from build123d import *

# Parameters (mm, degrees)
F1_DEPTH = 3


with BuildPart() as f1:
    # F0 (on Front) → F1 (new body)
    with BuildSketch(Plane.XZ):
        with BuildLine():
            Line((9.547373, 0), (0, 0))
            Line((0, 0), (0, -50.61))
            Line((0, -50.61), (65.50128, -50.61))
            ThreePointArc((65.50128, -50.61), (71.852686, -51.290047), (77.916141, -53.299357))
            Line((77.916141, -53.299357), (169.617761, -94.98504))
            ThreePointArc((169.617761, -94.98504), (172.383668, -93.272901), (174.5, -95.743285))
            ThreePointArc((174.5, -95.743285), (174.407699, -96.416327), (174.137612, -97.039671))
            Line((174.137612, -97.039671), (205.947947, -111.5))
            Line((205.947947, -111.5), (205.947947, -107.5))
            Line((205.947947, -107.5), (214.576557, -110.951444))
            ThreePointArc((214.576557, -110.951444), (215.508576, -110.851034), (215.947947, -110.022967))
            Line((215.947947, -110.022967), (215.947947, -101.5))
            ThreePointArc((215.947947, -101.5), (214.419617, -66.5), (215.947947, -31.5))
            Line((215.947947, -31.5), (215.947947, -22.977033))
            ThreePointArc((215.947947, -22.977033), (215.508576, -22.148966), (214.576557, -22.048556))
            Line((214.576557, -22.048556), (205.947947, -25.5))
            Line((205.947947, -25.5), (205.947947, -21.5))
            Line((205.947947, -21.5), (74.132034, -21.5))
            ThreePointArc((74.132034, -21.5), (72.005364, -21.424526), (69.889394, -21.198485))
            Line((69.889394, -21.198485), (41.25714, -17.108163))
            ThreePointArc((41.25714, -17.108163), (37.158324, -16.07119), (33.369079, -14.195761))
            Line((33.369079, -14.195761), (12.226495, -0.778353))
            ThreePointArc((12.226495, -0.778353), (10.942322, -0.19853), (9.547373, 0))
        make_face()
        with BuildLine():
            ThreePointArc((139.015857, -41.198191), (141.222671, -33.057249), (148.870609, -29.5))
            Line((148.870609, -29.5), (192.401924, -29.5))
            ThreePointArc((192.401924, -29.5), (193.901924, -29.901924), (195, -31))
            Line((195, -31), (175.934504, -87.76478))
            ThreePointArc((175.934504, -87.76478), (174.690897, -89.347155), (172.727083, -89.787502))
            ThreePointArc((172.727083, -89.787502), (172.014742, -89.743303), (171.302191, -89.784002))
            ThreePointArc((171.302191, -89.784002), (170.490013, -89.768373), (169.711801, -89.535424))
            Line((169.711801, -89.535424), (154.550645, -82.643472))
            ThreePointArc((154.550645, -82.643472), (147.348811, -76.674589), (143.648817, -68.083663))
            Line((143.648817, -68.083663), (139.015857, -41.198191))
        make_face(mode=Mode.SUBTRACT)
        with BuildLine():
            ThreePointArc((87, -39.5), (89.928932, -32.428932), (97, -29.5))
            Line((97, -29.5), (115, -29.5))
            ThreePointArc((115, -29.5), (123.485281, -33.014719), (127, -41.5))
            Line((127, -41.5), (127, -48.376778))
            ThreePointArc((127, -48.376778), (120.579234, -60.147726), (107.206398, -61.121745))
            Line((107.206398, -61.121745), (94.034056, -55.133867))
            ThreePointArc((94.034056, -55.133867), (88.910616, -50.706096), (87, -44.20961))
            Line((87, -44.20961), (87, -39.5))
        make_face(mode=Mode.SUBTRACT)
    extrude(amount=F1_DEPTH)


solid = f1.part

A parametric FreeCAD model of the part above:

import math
import FreeCAD as App
import Part
import Sketcher

doc = App.newDocument("Part")
params = doc.addObject("Spreadsheet::Sheet", "Params")
for row, (alias, value) in enumerate([
    ("sketch1_radius", "1 mm"),
    ("sketch1_radius2", "1 mm"),
    ("sketch1_radius3", "10 mm"),
    ("sketch1_radius4", "3.000001 mm"),
    ("sketch1_radius5", "9.999999 mm"),
    ("pad1_length", "3 mm"),
], start=1):
    params.set(f"A{row}", alias)
    params.set(f"B{row}", "=" + value)
    params.setAlias(f"B{row}", alias)

body = doc.addObject("PartDesign::Body", "Body")

# Sketch on XZ plane
sketch1 = doc.addObject("Sketcher::SketchObject", "Sketch")
body.addObject(sketch1)
sketch1.AttachmentSupport = (doc.XZ_Plane, [""])
sketch1.MapMode = "FlatFace"
sketch1.addGeometry([
    Part.LineSegment(App.Vector(9.547373, 0, 0), App.Vector(0, 0, 0)),  # 0
    Part.LineSegment(App.Vector(0, 0, 0), App.Vector(0, -50.61, 0)),  # 1
    Part.LineSegment(App.Vector(0, -50.61, 0), App.Vector(65.50128, -50.61, 0)),  # 2
    Part.ArcOfCircle(Part.Circle(App.Vector(65.501281, -80.609997, 0), App.Vector(0, 0, 1), 29.999997), math.radians(65.554422), math.radians(90.000001)),  # 3
    Part.LineSegment(App.Vector(77.916141, -53.299357, 0), App.Vector(169.617761, -94.98504, 0)),  # 4
    Part.ArcOfCircle(Part.Circle(App.Vector(172, -95.743285, 0), App.Vector(0, 0, 1), 2.5), math.radians(0.000005), math.radians(162.344197)),  # 5
    Part.ArcOfCircle(Part.Circle(App.Vector(171.999995, -95.743284, 0), App.Vector(0, 0, 1), 2.500005), math.radians(-31.235286), math.radians(-0.000014)),  # 6
    Part.LineSegment(App.Vector(174.137612, -97.039671, 0), App.Vector(205.947947, -111.5, 0)),  # 7
    Part.LineSegment(App.Vector(205.947947, -111.5, 0), App.Vector(205.947947, -107.5, 0)),  # 8
    Part.LineSegment(App.Vector(205.947947, -107.5, 0), App.Vector(214.576557, -110.951444, 0)),  # 9
    Part.ArcOfCircle(Part.Circle(App.Vector(214.947947, -110.022967, 0), App.Vector(0, 0, 1), 1), math.radians(-111.801355), math.radians(-0.00001)),  # 10
    Part.LineSegment(App.Vector(215.947947, -110.022967, 0), App.Vector(215.947947, -101.5, 0)),  # 11
    Part.ArcOfCircle(Part.Circle(App.Vector(615.948015, -66.5, 0), App.Vector(0, 0, 1), 401.528398), math.radians(174.999356), math.radians(185.000644)),  # 12
    Part.LineSegment(App.Vector(215.947947, -31.5, 0), App.Vector(215.947947, -22.977033, 0)),  # 13
    Part.ArcOfCircle(Part.Circle(App.Vector(214.947947, -22.977033, 0), App.Vector(0, 0, 1), 1), math.radians(0.00001), math.radians(111.801355)),  # 14
    Part.LineSegment(App.Vector(214.576557, -22.048556, 0), App.Vector(205.947947, -25.5, 0)),  # 15
    Part.LineSegment(App.Vector(205.947947, -25.5, 0), App.Vector(205.947947, -21.5, 0)),  # 16
    Part.LineSegment(App.Vector(205.947947, -21.5, 0), App.Vector(74.132034, -21.5, 0)),  # 17
    Part.ArcOfCircle(Part.Circle(App.Vector(74.132043, 8.50014, 0), App.Vector(0, 0, 1), 30.00014), math.radians(-98.130081), math.radians(-90.000018)),  # 18
    Part.LineSegment(App.Vector(69.889394, -21.198485, 0), App.Vector(41.25714, -17.108163, 0)),  # 19
    Part.ArcOfCircle(Part.Circle(App.Vector(44.085573, 2.690836, 0), App.Vector(0, 0, 1), 20.00001), math.radians(-122.399838), math.radians(-98.130114)),  # 20
    Part.LineSegment(App.Vector(33.369079, -14.195761, 0), App.Vector(12.226495, -0.778353, 0)),  # 21
    Part.ArcOfCircle(Part.Circle(App.Vector(9.547371, -5.000005, 0), App.Vector(0, 0, 1), 5.000005), math.radians(57.600175), math.radians(89.999979)),  # 22
    Part.LineSegment(App.Vector(143.648817, -68.083663, 0), App.Vector(139.015857, -41.198191, 0)),  # 23
    Part.ArcOfCircle(Part.Circle(App.Vector(148.870609, -39.5, 0), App.Vector(0, 0, 1), 10), math.radians(90), math.radians(189.777304)),  # 24
    Part.LineSegment(App.Vector(148.870609, -29.5, 0), App.Vector(192.401924, -29.5, 0)),  # 25
    Part.ArcOfCircle(Part.Circle(App.Vector(192.401924, -32.5, 0), App.Vector(0, 0, 1), 3.000001), math.radians(30.000006), math.radians(89.99999)),  # 26
    Part.LineSegment(App.Vector(195, -31, 0), App.Vector(175.934504, -87.76478, 0)),  # 27
    Part.ArcOfCircle(Part.Circle(App.Vector(173.090626, -86.809613, 0), App.Vector(0, 0, 1), 2.999997), math.radians(-96.960275), math.radians(-18.565537)),  # 28
    Part.ArcOfCircle(Part.Circle(App.Vector(172.000004, -95.743223, 0), App.Vector(0, 0, 1), 5.999938), math.radians(83.039724), math.radians(96.678802)),  # 29
    Part.ArcOfCircle(Part.Circle(App.Vector(170.95329, -86.804345, 0), App.Vector(0, 0, 1), 3.000015), math.radians(-114.445511), math.radians(-83.321403)),  # 30
    Part.LineSegment(App.Vector(169.711801, -89.535424, 0), App.Vector(154.550645, -82.643472, 0)),  # 31
    Part.ArcOfCircle(Part.Circle(App.Vector(163.358319, -64.687282, 0), App.Vector(0, 0, 1), 19.999997), math.radians(-170.2227), math.radians(-116.12837)),  # 32
    Part.LineSegment(App.Vector(87, -44.20961, 0), App.Vector(87, -39.5, 0)),  # 33
    Part.ArcOfCircle(Part.Circle(App.Vector(96.999999, -39.499999, 0), App.Vector(0, 0, 1), 9.999999), math.radians(89.999996), math.radians(180.000004)),  # 34
    Part.LineSegment(App.Vector(97, -29.5, 0), App.Vector(115, -29.5, 0)),  # 35
    Part.ArcOfCircle(Part.Circle(App.Vector(114.999999, -41.500001, 0), App.Vector(0, 0, 1), 12.000001), math.radians(0.000006), math.radians(89.999994)),  # 36
    Part.LineSegment(App.Vector(127, -41.5, 0), App.Vector(127, -48.376778, 0)),  # 37
    Part.ArcOfCircle(Part.Circle(App.Vector(113, -48.376778, 0), App.Vector(0, 0, 1), 14), math.radians(-114.445576), math.radians(0.000001)),  # 38
    Part.LineSegment(App.Vector(107.206398, -61.121745, 0), App.Vector(94.034056, -55.133867, 0)),  # 39
    Part.ArcOfCircle(Part.Circle(App.Vector(98.999999, -44.20961, 0), App.Vector(0, 0, 1), 11.999999), math.radians(179.999998), math.radians(245.55443)),  # 40
], False)
sketch1.addConstraint([
    Sketcher.Constraint("Coincident", 0, 2, 1, 1),
    Sketcher.Constraint("Coincident", 1, 2, 2, 1),
    Sketcher.Constraint("Coincident", 2, 2, 3, 2),
    Sketcher.Constraint("Coincident", 3, 1, 4, 1),
    Sketcher.Constraint("Coincident", 4, 2, 5, 2),
    Sketcher.Constraint("Coincident", 5, 1, 6, 2),
    Sketcher.Constraint("Coincident", 6, 1, 7, 1),
    Sketcher.Constraint("Coincident", 7, 2, 8, 1),
    Sketcher.Constraint("Coincident", 8, 2, 9, 1),
    Sketcher.Constraint("Coincident", 9, 2, 10, 1),
    Sketcher.Constraint("Coincident", 10, 2, 11, 1),
    Sketcher.Constraint("Coincident", 11, 2, 12, 2),
    Sketcher.Constraint("Coincident", 12, 1, 13, 1),
    Sketcher.Constraint("Coincident", 13, 2, 14, 1),
    Sketcher.Constraint("Coincident", 14, 2, 15, 1),
    Sketcher.Constraint("Coincident", 15, 2, 16, 1),
    Sketcher.Constraint("Coincident", 16, 2, 17, 1),
    Sketcher.Constraint("Coincident", 17, 2, 18, 2),
    Sketcher.Constraint("Coincident", 18, 1, 19, 1),
    Sketcher.Constraint("Coincident", 19, 2, 20, 2),
    Sketcher.Constraint("Coincident", 20, 1, 21, 1),
    Sketcher.Constraint("Coincident", 21, 2, 22, 1),
    Sketcher.Constraint("Coincident", 22, 2, 0, 1),
    Sketcher.Constraint("Coincident", 23, 2, 24, 2),
    Sketcher.Constraint("Coincident", 24, 1, 25, 1),
    Sketcher.Constraint("Coincident", 25, 2, 26, 2),
    Sketcher.Constraint("Coincident", 26, 1, 27, 1),
    Sketcher.Constraint("Coincident", 27, 2, 28, 2),
    Sketcher.Constraint("Coincident", 28, 1, 29, 1),
    Sketcher.Constraint("Coincident", 29, 2, 30, 2),
    Sketcher.Constraint("Coincident", 30, 1, 31, 1),
    Sketcher.Constraint("Coincident", 31, 2, 32, 2),
    Sketcher.Constraint("Coincident", 32, 1, 23, 1),
    Sketcher.Constraint("Coincident", 33, 2, 34, 2),
    Sketcher.Constraint("Coincident", 34, 1, 35, 1),
    Sketcher.Constraint("Coincident", 35, 2, 36, 2),
    Sketcher.Constraint("Coincident", 36, 1, 37, 1),
    Sketcher.Constraint("Coincident", 37, 2, 38, 2),
    Sketcher.Constraint("Coincident", 38, 1, 39, 1),
    Sketcher.Constraint("Coincident", 39, 2, 40, 2),
    Sketcher.Constraint("Coincident", 40, 1, 33, 1),
    Sketcher.Constraint("Horizontal", 0),
    Sketcher.Constraint("Vertical", 1),
    Sketcher.Constraint("Horizontal", 2),
    Sketcher.Constraint("Vertical", 8),
    Sketcher.Constraint("Vertical", 11),
    Sketcher.Constraint("Vertical", 13),
    Sketcher.Constraint("Vertical", 16),
    Sketcher.Constraint("Horizontal", 17),
    Sketcher.Constraint("Horizontal", 25),
    Sketcher.Constraint("Vertical", 33),
    Sketcher.Constraint("Horizontal", 35),
    Sketcher.Constraint("Vertical", 37),
    Sketcher.Constraint("Coincident", 0, 2, -1, 1),
    Sketcher.Constraint("Coincident", 6, 3, 5, 3),
    Sketcher.Constraint("Radius", 10, 1.0),
    Sketcher.Constraint("Radius", 14, 1.0),
    Sketcher.Constraint("Radius", 24, 10.0),
    Sketcher.Constraint("Radius", 26, 3.000001),
    Sketcher.Constraint("Radius", 34, 9.999999),
    Sketcher.Constraint("Radius", 36, 12.000001),
    Sketcher.Constraint("Radius", 38, 14.0),
    Sketcher.Constraint("Radius", 40, 11.999999),
    Sketcher.Constraint("Radius", 5, 2.5),
    Sketcher.Constraint("DistanceX", 35, 1, 35, 2, 18.0),
    Sketcher.Constraint("DistanceY", 8, 1, 8, 2, 4.0),
    Sketcher.Constraint("DistanceY", 16, 1, 16, 2, 4.0),
    Sketcher.Constraint("DistanceX", -1, 1, 5, 3, 172.0),
    Sketcher.Constraint("DistanceX", -1, 1, 34, 3, 96.999999),
    Sketcher.Constraint("DistanceX", -1, 1, 36, 3, 114.999999),
    Sketcher.Constraint("DistanceX", -1, 1, 26, 1, 195.0),
    Sketcher.Constraint("DistanceY", 26, 1, -1, 1, 31.0),
    Sketcher.Constraint("DistanceX", -1, 1, 34, 1, 97.0),
    Sketcher.Constraint("DistanceY", 36, 3, 24, 3, 2.000002),
    Sketcher.Constraint("DistanceX", 7, 2, 10, 3, 9.0),
    Sketcher.Constraint("DistanceY", 8, 2, 11, 2, 6.0),
    Sketcher.Constraint("DistanceY", 26, 3, 12, 1, 1.0),
    Sketcher.Constraint("DistanceX", 15, 2, 14, 3, 9.0),
    Sketcher.Constraint("DistanceY", 26, 3, 15, 2, 7.0),
    Sketcher.Constraint("DistanceY", 33, 2, 17, 2, 18.0),
    Sketcher.Constraint("DistanceY", 36, 1, 35, 2, 12.0),
    Sketcher.Constraint("DistanceY", 1, 2, 1, 1, 50.61),
    Sketcher.Constraint("DistanceY", 12, 3, -1, 1, 66.5),
    Sketcher.Constraint("DistanceY", 24, 3, -1, 1, 39.5),
    Sketcher.Constraint("DistanceY", 7, 2, -1, 1, 111.5),
    Sketcher.Constraint("Radius", 18, 30.00014),
    Sketcher.Constraint("Radius", 20, 20.00001),
    Sketcher.Constraint("Radius", 3, 29.999997),
    Sketcher.Constraint("Radius", 12, 401.528398),
    Sketcher.Constraint("Radius", 22, 5.000005),
    Sketcher.Constraint("Radius", 28, 2.999997),
    Sketcher.Constraint("Radius", 29, 5.999938),
    Sketcher.Constraint("Radius", 30, 3.000015),
    Sketcher.Constraint("Radius", 32, 19.999997),
    Sketcher.Constraint("DistanceY", 19, 2, 20, 3, 19.798999),
    Sketcher.Constraint("DistanceX", 2, 1, 2, 2, 65.50128),
    Sketcher.Constraint("DistanceY", 33, 1, 33, 2, 4.70961),
    Sketcher.Constraint("DistanceY", 37, 2, 37, 1, 6.876778),
    Sketcher.Constraint("DistanceY", 28, 1, -1, 1, 89.787502),
    Sketcher.Constraint("DistanceX", -1, 1, 30, 1, 169.711801),
    Sketcher.Constraint("DistanceX", 22, 3, 20, 3, 34.538201),
    Sketcher.Constraint("DistanceY", 19, 2, 20, 1, 2.912402),
    Sketcher.Constraint("DistanceX", 22, 2, 20, 3, 34.5382),
    Sketcher.Constraint("DistanceX", 29, 3, 27, 2, 3.9345),
    Sketcher.Constraint("DistanceY", 28, 1, 29, 2, 0.0035),
    Sketcher.Constraint("DistanceX", 30, 3, 29, 2, 0.348901),
    Sketcher.Constraint("DistanceX", 38, 1, 38, 3, 5.793602),
    Sketcher.Constraint("Distance", 4, 100.731739),
    Sketcher.Constraint("Distance", 7, 34.942789),
    Sketcher.Constraint("Distance", 21, 25.040681),
    Sketcher.Constraint("Distance", 31, 16.654118),
    Sketcher.Constraint("Distance", 39, 14.46946),
    Sketcher.Constraint("DistanceX", 0, 2, 0, 1, 9.547373),
    Sketcher.Constraint("DistanceX", 17, 2, 17, 1, 131.815913),
    Sketcher.Constraint("DistanceX", 25, 1, 25, 2, 43.531315),
    Sketcher.Constraint("DistanceY", 11, 1, 11, 2, 8.522967),
    Sketcher.Constraint("DistanceY", 13, 1, 13, 2, 8.522967),
    Sketcher.Constraint("DistanceX", -1, 1, 3, 3, 65.501281),
    Sketcher.Constraint("DistanceX", -1, 1, 24, 3, 148.870609),
    Sketcher.Constraint("DistanceX", -1, 1, 30, 3, 170.95329),
    Sketcher.Constraint("DistanceX", -1, 1, 32, 3, 163.358319),
    Sketcher.Constraint("DistanceY", 32, 3, -1, 1, 64.687282),
    Sketcher.Constraint("DistanceY", 38, 3, -1, 1, 48.376778),
    Sketcher.Constraint("DistanceY", 40, 3, -1, 1, 44.20961),
    Sketcher.Constraint("DistanceX", -1, 1, 3, 1, 77.916141),
    Sketcher.Constraint("DistanceX", -1, 1, 4, 2, 169.617761),
    Sketcher.Constraint("DistanceY", 6, 1, -1, 1, 97.039671),
    Sketcher.Constraint("DistanceY", 20, 1, -1, 1, 14.195761),
    Sketcher.Constraint("DistanceY", 23, 2, -1, 1, 41.198191),
    Sketcher.Constraint("DistanceX", -1, 1, 24, 1, 148.870609),
    Sketcher.Constraint("DistanceY", 27, 2, -1, 1, 87.76478),
    Sketcher.Constraint("DistanceY", 10, 3, 5, 3, 14.279682),
    Sketcher.Constraint("DistanceY", 6, 3, 14, 3, 72.766251),
    Sketcher.Constraint("DistanceX", 20, 3, 18, 3, 30.046471),
    Sketcher.Constraint("DistanceX", 6, 3, 28, 3, 1.090631),
    Sketcher.Constraint("DistanceY", 5, 1, 28, 3, 8.933672),
    Sketcher.Constraint("DistanceX", 9, 2, 10, 3, 0.37139),
    Sketcher.Constraint("DistanceX", 14, 2, 14, 3, 0.37139),
    Sketcher.Constraint("DistanceX", 18, 1, 17, 2, 4.24264),
    Sketcher.Constraint("DistanceX", 32, 1, 31, 2, 10.901828),
])
sketch1.setExpression("Constraints[55]", "Params.sketch1_radius")
sketch1.setExpression("Constraints[56]", "Params.sketch1_radius2")
sketch1.setExpression("Constraints[57]", "Params.sketch1_radius3")
sketch1.setExpression("Constraints[58]", "Params.sketch1_radius4")
sketch1.setExpression("Constraints[59]", "Params.sketch1_radius5")
pad1 = doc.addObject("PartDesign::Pad", "Pad")
body.addObject(pad1)
pad1.Profile = sketch1
pad1.setExpression("Length", "Params.pad1_length")

doc.recompute()
